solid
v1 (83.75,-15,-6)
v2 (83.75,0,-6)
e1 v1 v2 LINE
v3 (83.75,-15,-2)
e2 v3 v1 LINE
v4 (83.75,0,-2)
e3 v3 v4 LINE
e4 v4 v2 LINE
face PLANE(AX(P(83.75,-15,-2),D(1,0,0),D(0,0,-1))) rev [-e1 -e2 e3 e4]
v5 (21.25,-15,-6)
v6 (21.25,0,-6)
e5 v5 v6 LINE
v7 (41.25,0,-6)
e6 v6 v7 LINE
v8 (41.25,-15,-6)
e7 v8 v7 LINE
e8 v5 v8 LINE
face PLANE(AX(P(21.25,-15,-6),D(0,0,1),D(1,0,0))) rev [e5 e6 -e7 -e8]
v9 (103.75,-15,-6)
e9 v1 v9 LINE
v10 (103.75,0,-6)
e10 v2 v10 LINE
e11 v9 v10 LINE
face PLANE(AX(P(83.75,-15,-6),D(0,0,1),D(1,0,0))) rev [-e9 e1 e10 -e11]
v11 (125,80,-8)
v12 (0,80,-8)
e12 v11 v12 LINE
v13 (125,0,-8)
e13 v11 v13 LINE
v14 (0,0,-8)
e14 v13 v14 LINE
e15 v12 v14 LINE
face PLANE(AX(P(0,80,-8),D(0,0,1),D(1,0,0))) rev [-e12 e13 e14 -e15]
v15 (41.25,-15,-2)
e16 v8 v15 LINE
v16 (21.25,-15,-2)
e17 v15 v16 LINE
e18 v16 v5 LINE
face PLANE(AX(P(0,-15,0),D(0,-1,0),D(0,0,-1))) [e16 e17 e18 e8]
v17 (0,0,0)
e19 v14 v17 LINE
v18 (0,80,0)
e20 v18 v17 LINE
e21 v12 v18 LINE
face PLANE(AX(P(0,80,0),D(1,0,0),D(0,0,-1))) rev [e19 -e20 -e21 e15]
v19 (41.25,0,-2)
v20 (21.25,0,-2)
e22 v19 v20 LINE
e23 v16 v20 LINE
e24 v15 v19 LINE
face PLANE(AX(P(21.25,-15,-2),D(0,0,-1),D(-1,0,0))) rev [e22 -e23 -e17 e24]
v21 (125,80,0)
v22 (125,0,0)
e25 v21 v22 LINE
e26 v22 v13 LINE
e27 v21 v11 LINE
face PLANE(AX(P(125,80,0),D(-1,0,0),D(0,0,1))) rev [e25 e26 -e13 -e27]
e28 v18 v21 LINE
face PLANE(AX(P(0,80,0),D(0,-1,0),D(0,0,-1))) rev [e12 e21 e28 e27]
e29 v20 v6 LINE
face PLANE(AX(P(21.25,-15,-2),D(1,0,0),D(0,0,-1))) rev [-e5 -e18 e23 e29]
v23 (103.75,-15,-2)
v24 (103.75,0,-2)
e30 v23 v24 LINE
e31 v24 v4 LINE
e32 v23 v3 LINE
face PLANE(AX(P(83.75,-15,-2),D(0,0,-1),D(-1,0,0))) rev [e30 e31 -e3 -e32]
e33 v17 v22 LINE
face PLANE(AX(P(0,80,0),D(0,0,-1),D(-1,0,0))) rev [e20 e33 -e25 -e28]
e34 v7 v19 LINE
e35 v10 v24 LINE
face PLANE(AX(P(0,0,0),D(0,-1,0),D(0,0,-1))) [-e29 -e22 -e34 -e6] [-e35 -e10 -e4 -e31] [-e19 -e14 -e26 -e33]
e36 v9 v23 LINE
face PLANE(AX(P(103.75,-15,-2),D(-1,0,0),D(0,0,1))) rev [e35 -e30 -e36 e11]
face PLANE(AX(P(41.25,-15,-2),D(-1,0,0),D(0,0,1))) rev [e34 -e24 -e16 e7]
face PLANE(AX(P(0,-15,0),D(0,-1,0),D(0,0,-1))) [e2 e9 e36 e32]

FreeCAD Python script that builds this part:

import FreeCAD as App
import Part
import Sketcher

V = App.Vector


def add_polygon(sketch, points):
    """Adds a closed chain of lines whose ends are joined by coincident constraints."""
    first, n = sketch.GeometryCount, len(points)
    for a, b in zip(points, points[1:] + points[:1]):
        sketch.addGeometry(Part.LineSegment(App.Vector(*a, 0), App.Vector(*b, 0)), False)
    for i in range(n):
        sketch.addConstraint(Sketcher.Constraint("Coincident", first + i, 2, first + (i + 1) % n, 1))

doc = App.newDocument("Part")
body = doc.addObject("PartDesign::Body", "Body")

# Sketch on XZ plane
sketch1 = body.newObject("Sketcher::SketchObject", "Sketch")
sketch1.AttachmentSupport = (doc.getObject("XZ_Plane"), [""])
sketch1.MapMode = "FlatFace"
add_polygon(sketch1, [(0, -8), (0, 0), (125, 0), (125, -8)])  # lines 0-3
sketch1.addConstraint(Sketcher.Constraint("Vertical", 0))
sketch1.addConstraint(Sketcher.Constraint("Horizontal", 1))
sketch1.addConstraint(Sketcher.Constraint("Vertical", 2))
sketch1.addConstraint(Sketcher.Constraint("Horizontal", 3))
sketch1.addConstraint(Sketcher.Constraint("Coincident", 0, 2, -1, 1))
sketch1.addConstraint(Sketcher.Constraint("DistanceX", 1, 1, 1, 2, 125.0))
sketch1.addConstraint(Sketcher.Constraint("DistanceY", 0, 1, 0, 2, 8.0))
pad1 = body.newObject("PartDesign::Pad", "Pad")
pad1.Profile = sketch1
pad1.Length = 80
pad1.Reversed = True

# Sketch on XZ plane
sketch2 = body.newObject("Sketcher::SketchObject", "Sketch001")
sketch2.AttachmentSupport = (doc.getObject("XZ_Plane"), [""])
sketch2.MapMode = "FlatFace"
add_polygon(sketch2, [(21.2, -2), (21.2, -6), (41.2, -6), (41.2, -2)])  # lines 0-3
add_polygon(sketch2, [(83.8, -2), (83.8, -6), (103.8, -6), (103.8, -2)])  # lines 4-7
sketch2.addConstraint(Sketcher.Constraint("Vertical", 0))
sketch2.addConstraint(Sketcher.Constraint("Horizontal", 1))
sketch2.addConstraint(Sketcher.Constraint("Vertical", 2))
sketch2.addConstraint(Sketcher.Constraint("Horizontal", 3))
sketch2.addConstraint(Sketcher.Constraint("Vertical", 4))
sketch2.addConstraint(Sketcher.Constraint("Horizontal", 5))
sketch2.addConstraint(Sketcher.Constraint("Vertical", 6))
sketch2.addConstraint(Sketcher.Constraint("Horizontal", 7))
sketch2.addConstraint(Sketcher.Constraint("Horizontal", 1, 2, 4, 2))
sketch2.addConstraint(Sketcher.Constraint("Horizontal", 3, 2, 6, 2))
sketch2.addConstraint(Sketcher.Constraint("Equal", 3, 5))
sketch2.addConstraint(Sketcher.Constraint("DistanceX", 1, 1, 1, 2, 20.0))
sketch2.addConstraint(Sketcher.Constraint("DistanceY", 0, 2, 0, 1, 4.0))
sketch2.addConstraint(Sketcher.Constraint("DistanceY", 0, 2, -1, 1, 6.0))
sketch2.addConstraint(Sketcher.Constraint("DistanceX", 1, 2, 4, 2, 42.5))
sketch2.addConstraint(Sketcher.Constraint("DistanceX", -1, 1, 0, 2, 21.25))
pad2 = body.newObject("PartDesign::Pad", "Pad001")
pad2.Profile = sketch2
pad2.Length = 15

doc.recompute()
